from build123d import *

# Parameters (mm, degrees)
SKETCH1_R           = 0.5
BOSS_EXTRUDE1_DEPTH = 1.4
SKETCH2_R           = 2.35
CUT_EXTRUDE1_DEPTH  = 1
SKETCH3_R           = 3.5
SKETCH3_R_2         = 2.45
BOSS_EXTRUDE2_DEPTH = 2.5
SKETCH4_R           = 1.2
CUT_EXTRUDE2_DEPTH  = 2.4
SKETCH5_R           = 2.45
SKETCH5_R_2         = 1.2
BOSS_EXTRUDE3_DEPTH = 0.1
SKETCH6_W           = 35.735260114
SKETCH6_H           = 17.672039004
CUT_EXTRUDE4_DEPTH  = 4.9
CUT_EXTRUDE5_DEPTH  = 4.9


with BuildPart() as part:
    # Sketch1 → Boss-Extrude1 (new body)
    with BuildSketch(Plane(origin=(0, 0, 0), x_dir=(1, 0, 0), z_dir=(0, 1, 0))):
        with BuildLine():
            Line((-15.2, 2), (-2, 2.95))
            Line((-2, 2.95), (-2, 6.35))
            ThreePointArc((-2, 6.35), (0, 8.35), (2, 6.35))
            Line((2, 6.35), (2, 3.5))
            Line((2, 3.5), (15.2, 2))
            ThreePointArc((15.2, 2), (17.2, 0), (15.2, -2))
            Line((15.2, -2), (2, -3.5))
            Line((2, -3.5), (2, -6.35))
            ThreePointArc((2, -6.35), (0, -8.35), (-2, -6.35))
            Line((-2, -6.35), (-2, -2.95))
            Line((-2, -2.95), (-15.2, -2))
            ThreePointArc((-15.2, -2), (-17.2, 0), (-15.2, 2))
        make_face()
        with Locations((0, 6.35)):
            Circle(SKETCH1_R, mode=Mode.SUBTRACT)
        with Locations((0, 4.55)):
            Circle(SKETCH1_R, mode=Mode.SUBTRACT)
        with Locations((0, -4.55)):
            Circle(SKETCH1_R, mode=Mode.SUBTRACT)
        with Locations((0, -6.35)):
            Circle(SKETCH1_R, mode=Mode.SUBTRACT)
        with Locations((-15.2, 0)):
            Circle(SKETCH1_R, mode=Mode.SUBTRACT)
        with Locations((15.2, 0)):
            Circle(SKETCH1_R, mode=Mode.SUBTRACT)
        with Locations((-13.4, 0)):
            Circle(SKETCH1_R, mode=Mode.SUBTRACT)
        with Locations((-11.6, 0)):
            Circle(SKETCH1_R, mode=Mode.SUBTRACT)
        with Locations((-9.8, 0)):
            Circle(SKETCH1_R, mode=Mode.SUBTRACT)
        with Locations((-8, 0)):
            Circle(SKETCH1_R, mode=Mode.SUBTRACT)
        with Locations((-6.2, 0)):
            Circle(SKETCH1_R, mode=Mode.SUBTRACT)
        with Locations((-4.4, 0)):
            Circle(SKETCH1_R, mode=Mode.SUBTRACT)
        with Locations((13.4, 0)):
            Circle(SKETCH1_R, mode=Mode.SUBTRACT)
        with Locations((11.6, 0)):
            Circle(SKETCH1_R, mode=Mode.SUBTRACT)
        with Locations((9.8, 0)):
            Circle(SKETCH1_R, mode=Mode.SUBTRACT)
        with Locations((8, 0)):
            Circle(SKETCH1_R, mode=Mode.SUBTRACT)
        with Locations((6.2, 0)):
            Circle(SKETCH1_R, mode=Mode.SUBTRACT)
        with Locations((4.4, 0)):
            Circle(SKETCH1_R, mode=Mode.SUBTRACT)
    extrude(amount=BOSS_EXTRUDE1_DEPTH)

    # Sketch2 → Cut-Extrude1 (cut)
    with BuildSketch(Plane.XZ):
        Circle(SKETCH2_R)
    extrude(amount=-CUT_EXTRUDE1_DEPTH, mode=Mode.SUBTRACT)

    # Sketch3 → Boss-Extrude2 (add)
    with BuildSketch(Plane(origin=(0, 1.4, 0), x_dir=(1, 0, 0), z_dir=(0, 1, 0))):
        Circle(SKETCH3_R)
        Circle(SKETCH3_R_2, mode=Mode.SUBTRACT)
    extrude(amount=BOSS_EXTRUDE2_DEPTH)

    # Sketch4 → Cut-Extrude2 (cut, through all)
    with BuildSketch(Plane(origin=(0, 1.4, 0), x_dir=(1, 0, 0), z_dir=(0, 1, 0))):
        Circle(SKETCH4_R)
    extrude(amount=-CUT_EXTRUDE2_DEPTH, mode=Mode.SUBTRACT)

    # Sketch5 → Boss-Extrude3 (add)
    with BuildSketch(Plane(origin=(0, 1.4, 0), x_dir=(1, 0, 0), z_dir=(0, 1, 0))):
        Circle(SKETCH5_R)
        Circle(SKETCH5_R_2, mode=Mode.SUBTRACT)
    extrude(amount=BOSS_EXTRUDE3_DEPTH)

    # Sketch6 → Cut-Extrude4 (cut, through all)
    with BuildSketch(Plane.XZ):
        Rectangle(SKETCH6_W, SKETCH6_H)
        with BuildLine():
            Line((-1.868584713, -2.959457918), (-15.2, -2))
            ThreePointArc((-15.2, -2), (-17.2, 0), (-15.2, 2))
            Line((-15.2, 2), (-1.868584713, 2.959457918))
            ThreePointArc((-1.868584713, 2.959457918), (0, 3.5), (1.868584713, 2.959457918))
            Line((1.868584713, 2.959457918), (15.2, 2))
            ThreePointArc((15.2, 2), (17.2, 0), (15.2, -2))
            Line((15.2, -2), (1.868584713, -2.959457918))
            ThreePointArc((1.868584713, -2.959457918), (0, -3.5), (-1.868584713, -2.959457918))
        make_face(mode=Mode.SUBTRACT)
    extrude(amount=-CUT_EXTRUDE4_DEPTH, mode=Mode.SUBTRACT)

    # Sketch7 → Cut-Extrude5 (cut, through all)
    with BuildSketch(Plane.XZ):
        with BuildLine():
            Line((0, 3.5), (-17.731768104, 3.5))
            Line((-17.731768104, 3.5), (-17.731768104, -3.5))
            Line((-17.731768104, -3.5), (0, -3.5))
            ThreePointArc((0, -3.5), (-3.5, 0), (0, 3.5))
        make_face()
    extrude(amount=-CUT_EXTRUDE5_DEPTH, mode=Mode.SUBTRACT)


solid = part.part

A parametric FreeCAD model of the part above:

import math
import FreeCAD as App
import Part
import Sketcher
from FreeCAD import Vector
Q = App.Units.Quantity


def add_polygon(sketch, points):
    """Adds a closed chain of lines whose ends are joined by coincident constraints."""
    first, n = sketch.GeometryCount, len(points)
    for a, b in zip(points, points[1:] + points[:1]):
        sketch.addGeometry(Part.LineSegment(App.Vector(*a, 0), App.Vector(*b, 0)), False)
    for i in range(n):
        sketch.addConstraint(Sketcher.Constraint("Coincident", first + i, 2, first + (i + 1) % n, 1))

doc = App.newDocument("Part")
body = doc.addObject("PartDesign::Body", "Body")

# Sketch on XZ plane
sketch1 = body.newObject("Sketcher::SketchObject", "Sketch")
sketch1.AttachmentSupport = (doc.getObject("XZ_Plane"), [""])
sketch1.MapMode = "FlatFace"
sketch1.addGeometry([
    Part.LineSegment(Vector(-2, -2.95, 0), Vector(-15.2, -2, 0)),  # 0
    Part.ArcOfCircle(Part.Circle(Vector(-15.2, 0, 0), Vector(0, 0, 1), 2), math.radians(90), math.radians(270)),  # 1
    Part.LineSegment(Vector(-15.2, 2, 0), Vector(-2, 2.95, 0)),  # 2
    Part.LineSegment(Vector(-2, 2.95, 0), Vector(-2, 6.35, 0)),  # 3
    Part.ArcOfCircle(Part.Circle(Vector(0, 6.35, 0), Vector(0, 0, 1), 2), math.radians(0), math.radians(180)),  # 4
    Part.LineSegment(Vector(2, 6.35, 0), Vector(2, 3.5, 0)),  # 5
    Part.LineSegment(Vector(2, 3.5, 0), Vector(15.2, 2, 0)),  # 6
    Part.ArcOfCircle(Part.Circle(Vector(15.2, 0, 0), Vector(0, 0, 1), 2), math.radians(-90), math.radians(90)),  # 7
    Part.LineSegment(Vector(15.2, -2, 0), Vector(2, -3.5, 0)),  # 8
    Part.LineSegment(Vector(2, -3.5, 0), Vector(2, -6.35, 0)),  # 9
    Part.ArcOfCircle(Part.Circle(Vector(0, -6.35, 0), Vector(0, 0, 1), 2), math.radians(180), math.radians(360)),  # 10
    Part.LineSegment(Vector(-2, -6.35, 0), Vector(-2, -2.95, 0)),  # 11
    Part.Circle(Vector(0, 6.35, 0), Vector(0, 0, 1), 0.5),  # 12
    Part.Circle(Vector(0, 4.55, 0), Vector(0, 0, 1), 0.5),  # 13
    Part.Circle(Vector(15.2, 0, 0), Vector(0, 0, 1), 0.5),  # 14
    Part.Circle(Vector(13.4, 0, 0), Vector(0, 0, 1), 0.5),  # 15
    Part.Circle(Vector(11.6, 0, 0), Vector(0, 0, 1), 0.5),  # 16
    Part.Circle(Vector(9.8, 0, 0), Vector(0, 0, 1), 0.5),  # 17
    Part.Circle(Vector(8, 0, 0), Vector(0, 0, 1), 0.5),  # 18
    Part.Circle(Vector(6.2, 0, 0), Vector(0, 0, 1), 0.5),  # 19
    Part.Circle(Vector(4.4, 0, 0), Vector(0, 0, 1), 0.5),  # 20
    Part.Circle(Vector(-4.4, 0, 0), Vector(0, 0, 1), 0.5),  # 21
    Part.Circle(Vector(-6.2, 0, 0), Vector(0, 0, 1), 0.5),  # 22
    Part.Circle(Vector(-8, 0, 0), Vector(0, 0, 1), 0.5),  # 23
    Part.Circle(Vector(-9.8, 0, 0), Vector(0, 0, 1), 0.5),  # 24
    Part.Circle(Vector(-11.6, 0, 0), Vector(0, 0, 1), 0.5),  # 25
    Part.Circle(Vector(-13.4, 0, 0), Vector(0, 0, 1), 0.5),  # 26
    Part.Circle(Vector(-15.2, 0, 0), Vector(0, 0, 1), 0.5),  # 27
    Part.Circle(Vector(0, -4.55, 0), Vector(0, 0, 1), 0.5),  # 28
    Part.Circle(Vector(0, -6.35, 0), Vector(0, 0, 1), 0.5),  # 29
], False)
sketch1.addConstraint([
    Sketcher.Constraint("Coincident", 0, 2, 1, 2),
    Sketcher.Constraint("Coincident", 1, 1, 2, 1),
    Sketcher.Constraint("Coincident", 2, 2, 3, 1),
    Sketcher.Constraint("Tangent", 3, 2, 4, 2),
    Sketcher.Constraint("Tangent", 4, 1, 5, 1),
    Sketcher.Constraint("Coincident", 5, 2, 6, 1),
    Sketcher.Constraint("Coincident", 6, 2, 7, 2),
    Sketcher.Constraint("Coincident", 7, 1, 8, 1),
    Sketcher.Constraint("Coincident", 8, 2, 9, 1),
    Sketcher.Constraint("Tangent", 9, 2, 10, 2),
    Sketcher.Constraint("Tangent", 10, 1, 11, 1),
    Sketcher.Constraint("Coincident", 11, 2, 0, 1),
    Sketcher.Constraint("Vertical", 3),
    Sketcher.Constraint("Vertical", 5),
    Sketcher.Constraint("Vertical", 9),
    Sketcher.Constraint("Vertical", 11),
    Sketcher.Constraint("Coincident", 12, 3, 4, 3),
    Sketcher.Constraint("Coincident", 14, 3, 7, 3),
    Sketcher.Constraint("Coincident", 27, 3, 1, 3),
    Sketcher.Constraint("Coincident", 29, 3, 10, 3),
    Sketcher.Constraint("Equal", 1, 4),
    Sketcher.Constraint("Equal", 4, 7),
    Sketcher.Constraint("Equal", 7, 10),
    Sketcher.Constraint("Equal", 12, 13),
    Sketcher.Constraint("Equal", 13, 14),
    Sketcher.Constraint("Equal", 14, 15),
    Sketcher.Constraint("Equal", 15, 16),
    Sketcher.Constraint("Equal", 16, 17),
    Sketcher.Constraint("Equal", 17, 18),
    Sketcher.Constraint("Equal", 18, 19),
    Sketcher.Constraint("Equal", 19, 20),
    Sketcher.Constraint("Equal", 20, 21),
    Sketcher.Constraint("Equal", 21, 22),
    Sketcher.Constraint("Equal", 22, 23),
    Sketcher.Constraint("Equal", 23, 24),
    Sketcher.Constraint("Equal", 24, 25),
    Sketcher.Constraint("Equal", 25, 26),
    Sketcher.Constraint("Equal", 26, 27),
    Sketcher.Constraint("Equal", 27, 28),
    Sketcher.Constraint("Equal", 28, 29),
    Sketcher.Constraint("Symmetric", 1, 3, 7, 3, -1, 1),
    Sketcher.Constraint("Symmetric", 4, 3, 10, 3, -1, 1),
    Sketcher.Constraint("Symmetric", 20, 3, 21, 3, -1, 1),
    Sketcher.Constraint("Symmetric", 19, 3, 22, 3, -1, 1),
    Sketcher.Constraint("Symmetric", 18, 3, 23, 3, -1, 1),
    Sketcher.Constraint("Symmetric", 17, 3, 24, 3, -1, 1),
    Sketcher.Constraint("Symmetric", 16, 3, 25, 3, -1, 1),
    Sketcher.Constraint("Symmetric", 15, 3, 26, 3, -1, 1),
    Sketcher.Constraint("Symmetric", 13, 3, 28, 3, -1, 1),
    Sketcher.Constraint("Symmetric", 1, 1, 6, 2, -2),
    Sketcher.Constraint("Symmetric", 5, 2, 8, 2, -1),
    Sketcher.Constraint("PointOnObject", 13, 3, -2),
    Sketcher.Constraint("PointOnObject", 15, 3, -1),
    Sketcher.Constraint("PointOnObject", 16, 3, -1),
    Sketcher.Constraint("PointOnObject", 17, 3, -1),
    Sketcher.Constraint("PointOnObject", 18, 3, -1),
    Sketcher.Constraint("PointOnObject", 19, 3, -1),
    Sketcher.Constraint("PointOnObject", 20, 3, -1),
    Sketcher.Constraint("Vertical", 27, 3, 0, 2),
    Sketcher.Constraint("Vertical", 0, 2, 1, 1),
    Sketcher.Constraint("Vertical", 6, 2, 7, 1),
    Sketcher.Constraint("Equal", 3, 11),
    Sketcher.Constraint("Diameter", 12, Q("1 mm")),
    Sketcher.Constraint("Radius", 1, Q("2 mm")),
    Sketcher.Constraint("DistanceY", 3, 1, 3, 2, Q("3.4 mm")),
    Sketcher.Constraint("DistanceX", -1, 1, 18, 3, Q("8 mm")),
    Sketcher.Constraint("DistanceY", 5, 2, 5, 1, Q("2.85 mm")),
    Sketcher.Constraint("DistanceX", 1, 3, -1, 1, Q("15.2 mm")),
    Sketcher.Constraint("DistanceX", -1, 1, 15, 3, Q("13.4 mm")),
    Sketcher.Constraint("DistanceX", -1, 1, 16, 3, Q("11.6 mm")),
    Sketcher.Constraint("DistanceX", -1, 1, 17, 3, Q("9.8 mm")),
    Sketcher.Constraint("DistanceX", -1, 1, 19, 3, Q("6.2 mm")),
    Sketcher.Constraint("DistanceX", -1, 1, 20, 3, Q("4.4 mm")),
    Sketcher.Constraint("DistanceY", -1, 1, 5, 2, Q("3.5 mm")),
    Sketcher.Constraint("DistanceY", 13, 3, 4, 3, Q("1.8 mm")),
])
pad1 = body.newObject("PartDesign::Pad", "Pad")
pad1.Profile = sketch1
pad1.Length = 1.4
pad1.Reversed = True

# Sketch on XZ plane
sketch2 = body.newObject("Sketcher::SketchObject", "Sketch001")
sketch2.AttachmentSupport = (doc.getObject("XZ_Plane"), [""])
sketch2.MapMode = "FlatFace"
sketch2.addGeometry(Part.Circle(Vector(0, 0, 0), Vector(0, 0, 1), 2.35), False)
sketch2.addConstraint([
    Sketcher.Constraint("Coincident", 0, 3, -1, 1),
    Sketcher.Constraint("Diameter", 0, Q("4.7 mm")),
])
pocket1 = body.newObject("PartDesign::Pocket", "Pocket")
pocket1.Profile = sketch2
pocket1.Length = 1

# Sketch on XZ plane
sketch3 = body.newObject("Sketcher::SketchObject", "Sketch002")
sketch3.AttachmentSupport = (doc.getObject("XZ_Plane"), [""])
sketch3.MapMode = "FlatFace"
sketch3.AttachmentOffset = App.Placement(Vector(0, 0, -1.4), App.Rotation())
sketch3.addGeometry([
    Part.Circle(Vector(0, 0, 0), Vector(0, 0, 1), 3.5),
    Part.Circle(Vector(0, 0, 0), Vector(0, 0, 1), 2.45),
], False)
sketch3.addConstraint([
    Sketcher.Constraint("Coincident", 0, 3, -1, 1),
    Sketcher.Constraint("Coincident", 1, 3, -1, 1),
    Sketcher.Constraint("Diameter", 0, Q("7 mm")),
    Sketcher.Constraint("Diameter", 1, Q("4.9 mm")),
])
pad2 = body.newObject("PartDesign::Pad", "Pad001")
pad2.Profile = sketch3
pad2.Length = 2.5
pad2.Reversed = True

# Sketch on XZ plane
sketch4 = body.newObject("Sketcher::SketchObject", "Sketch003")
sketch4.AttachmentSupport = (doc.getObject("XZ_Plane"), [""])
sketch4.MapMode = "FlatFace"
sketch4.AttachmentOffset = App.Placement(Vector(0, 0, -1.4), App.Rotation())
sketch4.addGeometry(Part.Circle(Vector(0, 0, 0), Vector(0, 0, 1), 1.2), False)
sketch4.addConstraint([
    Sketcher.Constraint("Coincident", 0, 3, -1, 1),
    Sketcher.Constraint("Diameter", 0, Q("2.4 mm")),
])
pocket2 = body.newObject("PartDesign::Pocket", "Pocket001")
pocket2.Profile = sketch4
pocket2.Type = "ThroughAll"
pocket2.Reversed = True

# Sketch on XZ plane
sketch5 = body.newObject("Sketcher::SketchObject", "Sketch004")
sketch5.AttachmentSupport = (doc.getObject("XZ_Plane"), [""])
sketch5.MapMode = "FlatFace"
sketch5.AttachmentOffset = App.Placement(Vector(0, 0, -1.4), App.Rotation())
sketch5.addGeometry([
    Part.Circle(Vector(0, 0, 0), Vector(0, 0, 1), 2.45),
    Part.Circle(Vector(0, 0, 0), Vector(0, 0, 1), 1.2),
], False)
sketch5.addConstraint([
    Sketcher.Constraint("Coincident", 0, 3, -1, 1),
    Sketcher.Constraint("Coincident", 1, 3, -1, 1),
    Sketcher.Constraint("Diameter", 0, Q("4.9 mm")),
    Sketcher.Constraint("Diameter", 1, Q("2.4 mm")),
])
pad3 = body.newObject("PartDesign::Pad", "Pad002")
pad3.Profile = sketch5
pad3.Length = 0.1
pad3.Reversed = True

# Sketch on XZ plane
sketch6 = body.newObject("Sketcher::SketchObject", "Sketch005")
sketch6.AttachmentSupport = (doc.getObject("XZ_Plane"), [""])
sketch6.MapMode = "FlatFace"
add_polygon(sketch6, [(-17.86763, 8.83602), (-17.86763, -8.83602), (17.86763, -8.83602), (17.86763, 8.83602)])  # lines 0-3
sketch6.addGeometry(Part.ArcOfCircle(Part.Circle(Vector(0, 0, 0), Vector(0, 0, 1), 3.5), math.radians(-122.268079), math.radians(-57.731921)), False)  # 4
sketch6.addGeometry(Part.LineSegment(Vector(-1.868585, -2.959458, 0), Vector(-15.2, -2, 0)), False)  # 5
sketch6.addGeometry(Part.ArcOfCircle(Part.Circle(Vector(-15.2, 0, 0), Vector(0, 0, 1), 2), math.radians(90), math.radians(270)), False)  # 6
sketch6.addGeometry(Part.LineSegment(Vector(-15.2, 2, 0), Vector(-1.868585, 2.959458, 0)), False)  # 7
sketch6.addGeometry(Part.ArcOfCircle(Part.Circle(Vector(0, 0, 0), Vector(0, 0, 1), 3.5), math.radians(57.731921), math.radians(122.268079)), False)  # 8
sketch6.addGeometry(Part.LineSegment(Vector(1.868585, 2.959458, 0), Vector(15.2, 2, 0)), False)  # 9
sketch6.addGeometry(Part.ArcOfCircle(Part.Circle(Vector(15.2, 0, 0), Vector(0, 0, 1), 2), math.radians(-90), math.radians(90)), False)  # 10
sketch6.addGeometry(Part.LineSegment(Vector(15.2, -2, 0), Vector(1.868585, -2.959458, 0)), False)  # 11
sketch6.addConstraint([
    Sketcher.Constraint("Coincident", 4, 1, 5, 1),
    Sketcher.Constraint("Coincident", 5, 2, 6, 2),
    Sketcher.Constraint("Coincident", 6, 1, 7, 1),
    Sketcher.Constraint("Coincident", 7, 2, 8, 2),
    Sketcher.Constraint("Coincident", 8, 1, 9, 1),
    Sketcher.Constraint("Coincident", 9, 2, 10, 2),
    Sketcher.Constraint("Coincident", 10, 1, 11, 1),
    Sketcher.Constraint("Coincident", 11, 2, 4, 2),
    Sketcher.Constraint("Vertical", 0),
    Sketcher.Constraint("Horizontal", 1),
    Sketcher.Constraint("Vertical", 2),
    Sketcher.Constraint("Horizontal", 3),
    Sketcher.Constraint("Coincident", 4, 3, -1, 1),
    Sketcher.Constraint("Coincident", 8, 3, -1, 1),
    Sketcher.Constraint("Equal", 4, 8),
    Sketcher.Constraint("Equal", 6, 10),
    Sketcher.Constraint("Symmetric", 6, 3, 10, 3, -1, 1),
    Sketcher.Constraint("Symmetric", 0, 2, 2, 2, -1, 1),
    Sketcher.Constraint("Symmetric", 6, 1, 9, 2, -2),
    Sketcher.Constraint("Parallel", 5, 9),
    Sketcher.Constraint("Parallel", 7, 11),
    Sketcher.Constraint("Horizontal", 7, 2, 8, 1),
    Sketcher.Constraint("Horizontal", 4, 1, 11, 2),
    Sketcher.Constraint("Vertical", 6, 3, 5, 2),
    Sketcher.Constraint("Vertical", 5, 2, 6, 1),
    Sketcher.Constraint("Radius", 6, Q("2 mm")),
    Sketcher.Constraint("Radius", 4, Q("3.5 mm")),
    Sketcher.Constraint("DistanceX", 6, 3, -1, 1, Q("15.2 mm")),
    Sketcher.Constraint("DistanceX", 1, 1, 1, 2, Q("35.73526 mm")),
    Sketcher.Constraint("DistanceY", 0, 2, 0, 1, Q("17.672039 mm")),
    Sketcher.Constraint("DistanceY", 0, 2, 4, 1, Q("5.876562 mm")),
])
pocket3 = body.newObject("PartDesign::Pocket", "Pocket002")
pocket3.Profile = sketch6
pocket3.Type = "ThroughAll"

# Sketch on XZ plane
sketch7 = body.newObject("Sketcher::SketchObject", "Sketch006")
sketch7.AttachmentSupport = (doc.getObject("XZ_Plane"), [""])
sketch7.MapMode = "FlatFace"
sketch7.addGeometry([
    Part.LineSegment(Vector(0, 3.5, 0), Vector(-17.731768, 3.5, 0)),
    Part.LineSegment(Vector(-17.731768, 3.5, 0), Vector(-17.731768, -3.5, 0)),
    Part.LineSegment(Vector(-17.731768, -3.5, 0), Vector(0, -3.5, 0)),
    Part.ArcOfCircle(Part.Circle(Vector(0, 0, 0), Vector(0, 0, 1), 3.5), math.radians(90), math.radians(270)),
], False)
sketch7.addConstraint([
    Sketcher.Constraint("Coincident", 0, 2, 1, 1),
    Sketcher.Constraint("Coincident", 1, 2, 2, 1),
    Sketcher.Constraint("Tangent", 2, 2, 3, 2),
    Sketcher.Constraint("Tangent", 3, 1, 0, 1),
    Sketcher.Constraint("Horizontal", 0),
    Sketcher.Constraint("Vertical", 1),
    Sketcher.Constraint("Horizontal", 2),
    Sketcher.Constraint("Coincident", 3, 3, -1, 1),
    Sketcher.Constraint("Radius", 3, Q("3.5 mm")),
    Sketcher.Constraint("DistanceX", 0, 2, 0, 1, Q("17.731768 mm")),
])
pocket4 = body.newObject("PartDesign::Pocket", "Pocket003")
pocket4.Profile = sketch7
pocket4.Type = "ThroughAll"

doc.recompute()
